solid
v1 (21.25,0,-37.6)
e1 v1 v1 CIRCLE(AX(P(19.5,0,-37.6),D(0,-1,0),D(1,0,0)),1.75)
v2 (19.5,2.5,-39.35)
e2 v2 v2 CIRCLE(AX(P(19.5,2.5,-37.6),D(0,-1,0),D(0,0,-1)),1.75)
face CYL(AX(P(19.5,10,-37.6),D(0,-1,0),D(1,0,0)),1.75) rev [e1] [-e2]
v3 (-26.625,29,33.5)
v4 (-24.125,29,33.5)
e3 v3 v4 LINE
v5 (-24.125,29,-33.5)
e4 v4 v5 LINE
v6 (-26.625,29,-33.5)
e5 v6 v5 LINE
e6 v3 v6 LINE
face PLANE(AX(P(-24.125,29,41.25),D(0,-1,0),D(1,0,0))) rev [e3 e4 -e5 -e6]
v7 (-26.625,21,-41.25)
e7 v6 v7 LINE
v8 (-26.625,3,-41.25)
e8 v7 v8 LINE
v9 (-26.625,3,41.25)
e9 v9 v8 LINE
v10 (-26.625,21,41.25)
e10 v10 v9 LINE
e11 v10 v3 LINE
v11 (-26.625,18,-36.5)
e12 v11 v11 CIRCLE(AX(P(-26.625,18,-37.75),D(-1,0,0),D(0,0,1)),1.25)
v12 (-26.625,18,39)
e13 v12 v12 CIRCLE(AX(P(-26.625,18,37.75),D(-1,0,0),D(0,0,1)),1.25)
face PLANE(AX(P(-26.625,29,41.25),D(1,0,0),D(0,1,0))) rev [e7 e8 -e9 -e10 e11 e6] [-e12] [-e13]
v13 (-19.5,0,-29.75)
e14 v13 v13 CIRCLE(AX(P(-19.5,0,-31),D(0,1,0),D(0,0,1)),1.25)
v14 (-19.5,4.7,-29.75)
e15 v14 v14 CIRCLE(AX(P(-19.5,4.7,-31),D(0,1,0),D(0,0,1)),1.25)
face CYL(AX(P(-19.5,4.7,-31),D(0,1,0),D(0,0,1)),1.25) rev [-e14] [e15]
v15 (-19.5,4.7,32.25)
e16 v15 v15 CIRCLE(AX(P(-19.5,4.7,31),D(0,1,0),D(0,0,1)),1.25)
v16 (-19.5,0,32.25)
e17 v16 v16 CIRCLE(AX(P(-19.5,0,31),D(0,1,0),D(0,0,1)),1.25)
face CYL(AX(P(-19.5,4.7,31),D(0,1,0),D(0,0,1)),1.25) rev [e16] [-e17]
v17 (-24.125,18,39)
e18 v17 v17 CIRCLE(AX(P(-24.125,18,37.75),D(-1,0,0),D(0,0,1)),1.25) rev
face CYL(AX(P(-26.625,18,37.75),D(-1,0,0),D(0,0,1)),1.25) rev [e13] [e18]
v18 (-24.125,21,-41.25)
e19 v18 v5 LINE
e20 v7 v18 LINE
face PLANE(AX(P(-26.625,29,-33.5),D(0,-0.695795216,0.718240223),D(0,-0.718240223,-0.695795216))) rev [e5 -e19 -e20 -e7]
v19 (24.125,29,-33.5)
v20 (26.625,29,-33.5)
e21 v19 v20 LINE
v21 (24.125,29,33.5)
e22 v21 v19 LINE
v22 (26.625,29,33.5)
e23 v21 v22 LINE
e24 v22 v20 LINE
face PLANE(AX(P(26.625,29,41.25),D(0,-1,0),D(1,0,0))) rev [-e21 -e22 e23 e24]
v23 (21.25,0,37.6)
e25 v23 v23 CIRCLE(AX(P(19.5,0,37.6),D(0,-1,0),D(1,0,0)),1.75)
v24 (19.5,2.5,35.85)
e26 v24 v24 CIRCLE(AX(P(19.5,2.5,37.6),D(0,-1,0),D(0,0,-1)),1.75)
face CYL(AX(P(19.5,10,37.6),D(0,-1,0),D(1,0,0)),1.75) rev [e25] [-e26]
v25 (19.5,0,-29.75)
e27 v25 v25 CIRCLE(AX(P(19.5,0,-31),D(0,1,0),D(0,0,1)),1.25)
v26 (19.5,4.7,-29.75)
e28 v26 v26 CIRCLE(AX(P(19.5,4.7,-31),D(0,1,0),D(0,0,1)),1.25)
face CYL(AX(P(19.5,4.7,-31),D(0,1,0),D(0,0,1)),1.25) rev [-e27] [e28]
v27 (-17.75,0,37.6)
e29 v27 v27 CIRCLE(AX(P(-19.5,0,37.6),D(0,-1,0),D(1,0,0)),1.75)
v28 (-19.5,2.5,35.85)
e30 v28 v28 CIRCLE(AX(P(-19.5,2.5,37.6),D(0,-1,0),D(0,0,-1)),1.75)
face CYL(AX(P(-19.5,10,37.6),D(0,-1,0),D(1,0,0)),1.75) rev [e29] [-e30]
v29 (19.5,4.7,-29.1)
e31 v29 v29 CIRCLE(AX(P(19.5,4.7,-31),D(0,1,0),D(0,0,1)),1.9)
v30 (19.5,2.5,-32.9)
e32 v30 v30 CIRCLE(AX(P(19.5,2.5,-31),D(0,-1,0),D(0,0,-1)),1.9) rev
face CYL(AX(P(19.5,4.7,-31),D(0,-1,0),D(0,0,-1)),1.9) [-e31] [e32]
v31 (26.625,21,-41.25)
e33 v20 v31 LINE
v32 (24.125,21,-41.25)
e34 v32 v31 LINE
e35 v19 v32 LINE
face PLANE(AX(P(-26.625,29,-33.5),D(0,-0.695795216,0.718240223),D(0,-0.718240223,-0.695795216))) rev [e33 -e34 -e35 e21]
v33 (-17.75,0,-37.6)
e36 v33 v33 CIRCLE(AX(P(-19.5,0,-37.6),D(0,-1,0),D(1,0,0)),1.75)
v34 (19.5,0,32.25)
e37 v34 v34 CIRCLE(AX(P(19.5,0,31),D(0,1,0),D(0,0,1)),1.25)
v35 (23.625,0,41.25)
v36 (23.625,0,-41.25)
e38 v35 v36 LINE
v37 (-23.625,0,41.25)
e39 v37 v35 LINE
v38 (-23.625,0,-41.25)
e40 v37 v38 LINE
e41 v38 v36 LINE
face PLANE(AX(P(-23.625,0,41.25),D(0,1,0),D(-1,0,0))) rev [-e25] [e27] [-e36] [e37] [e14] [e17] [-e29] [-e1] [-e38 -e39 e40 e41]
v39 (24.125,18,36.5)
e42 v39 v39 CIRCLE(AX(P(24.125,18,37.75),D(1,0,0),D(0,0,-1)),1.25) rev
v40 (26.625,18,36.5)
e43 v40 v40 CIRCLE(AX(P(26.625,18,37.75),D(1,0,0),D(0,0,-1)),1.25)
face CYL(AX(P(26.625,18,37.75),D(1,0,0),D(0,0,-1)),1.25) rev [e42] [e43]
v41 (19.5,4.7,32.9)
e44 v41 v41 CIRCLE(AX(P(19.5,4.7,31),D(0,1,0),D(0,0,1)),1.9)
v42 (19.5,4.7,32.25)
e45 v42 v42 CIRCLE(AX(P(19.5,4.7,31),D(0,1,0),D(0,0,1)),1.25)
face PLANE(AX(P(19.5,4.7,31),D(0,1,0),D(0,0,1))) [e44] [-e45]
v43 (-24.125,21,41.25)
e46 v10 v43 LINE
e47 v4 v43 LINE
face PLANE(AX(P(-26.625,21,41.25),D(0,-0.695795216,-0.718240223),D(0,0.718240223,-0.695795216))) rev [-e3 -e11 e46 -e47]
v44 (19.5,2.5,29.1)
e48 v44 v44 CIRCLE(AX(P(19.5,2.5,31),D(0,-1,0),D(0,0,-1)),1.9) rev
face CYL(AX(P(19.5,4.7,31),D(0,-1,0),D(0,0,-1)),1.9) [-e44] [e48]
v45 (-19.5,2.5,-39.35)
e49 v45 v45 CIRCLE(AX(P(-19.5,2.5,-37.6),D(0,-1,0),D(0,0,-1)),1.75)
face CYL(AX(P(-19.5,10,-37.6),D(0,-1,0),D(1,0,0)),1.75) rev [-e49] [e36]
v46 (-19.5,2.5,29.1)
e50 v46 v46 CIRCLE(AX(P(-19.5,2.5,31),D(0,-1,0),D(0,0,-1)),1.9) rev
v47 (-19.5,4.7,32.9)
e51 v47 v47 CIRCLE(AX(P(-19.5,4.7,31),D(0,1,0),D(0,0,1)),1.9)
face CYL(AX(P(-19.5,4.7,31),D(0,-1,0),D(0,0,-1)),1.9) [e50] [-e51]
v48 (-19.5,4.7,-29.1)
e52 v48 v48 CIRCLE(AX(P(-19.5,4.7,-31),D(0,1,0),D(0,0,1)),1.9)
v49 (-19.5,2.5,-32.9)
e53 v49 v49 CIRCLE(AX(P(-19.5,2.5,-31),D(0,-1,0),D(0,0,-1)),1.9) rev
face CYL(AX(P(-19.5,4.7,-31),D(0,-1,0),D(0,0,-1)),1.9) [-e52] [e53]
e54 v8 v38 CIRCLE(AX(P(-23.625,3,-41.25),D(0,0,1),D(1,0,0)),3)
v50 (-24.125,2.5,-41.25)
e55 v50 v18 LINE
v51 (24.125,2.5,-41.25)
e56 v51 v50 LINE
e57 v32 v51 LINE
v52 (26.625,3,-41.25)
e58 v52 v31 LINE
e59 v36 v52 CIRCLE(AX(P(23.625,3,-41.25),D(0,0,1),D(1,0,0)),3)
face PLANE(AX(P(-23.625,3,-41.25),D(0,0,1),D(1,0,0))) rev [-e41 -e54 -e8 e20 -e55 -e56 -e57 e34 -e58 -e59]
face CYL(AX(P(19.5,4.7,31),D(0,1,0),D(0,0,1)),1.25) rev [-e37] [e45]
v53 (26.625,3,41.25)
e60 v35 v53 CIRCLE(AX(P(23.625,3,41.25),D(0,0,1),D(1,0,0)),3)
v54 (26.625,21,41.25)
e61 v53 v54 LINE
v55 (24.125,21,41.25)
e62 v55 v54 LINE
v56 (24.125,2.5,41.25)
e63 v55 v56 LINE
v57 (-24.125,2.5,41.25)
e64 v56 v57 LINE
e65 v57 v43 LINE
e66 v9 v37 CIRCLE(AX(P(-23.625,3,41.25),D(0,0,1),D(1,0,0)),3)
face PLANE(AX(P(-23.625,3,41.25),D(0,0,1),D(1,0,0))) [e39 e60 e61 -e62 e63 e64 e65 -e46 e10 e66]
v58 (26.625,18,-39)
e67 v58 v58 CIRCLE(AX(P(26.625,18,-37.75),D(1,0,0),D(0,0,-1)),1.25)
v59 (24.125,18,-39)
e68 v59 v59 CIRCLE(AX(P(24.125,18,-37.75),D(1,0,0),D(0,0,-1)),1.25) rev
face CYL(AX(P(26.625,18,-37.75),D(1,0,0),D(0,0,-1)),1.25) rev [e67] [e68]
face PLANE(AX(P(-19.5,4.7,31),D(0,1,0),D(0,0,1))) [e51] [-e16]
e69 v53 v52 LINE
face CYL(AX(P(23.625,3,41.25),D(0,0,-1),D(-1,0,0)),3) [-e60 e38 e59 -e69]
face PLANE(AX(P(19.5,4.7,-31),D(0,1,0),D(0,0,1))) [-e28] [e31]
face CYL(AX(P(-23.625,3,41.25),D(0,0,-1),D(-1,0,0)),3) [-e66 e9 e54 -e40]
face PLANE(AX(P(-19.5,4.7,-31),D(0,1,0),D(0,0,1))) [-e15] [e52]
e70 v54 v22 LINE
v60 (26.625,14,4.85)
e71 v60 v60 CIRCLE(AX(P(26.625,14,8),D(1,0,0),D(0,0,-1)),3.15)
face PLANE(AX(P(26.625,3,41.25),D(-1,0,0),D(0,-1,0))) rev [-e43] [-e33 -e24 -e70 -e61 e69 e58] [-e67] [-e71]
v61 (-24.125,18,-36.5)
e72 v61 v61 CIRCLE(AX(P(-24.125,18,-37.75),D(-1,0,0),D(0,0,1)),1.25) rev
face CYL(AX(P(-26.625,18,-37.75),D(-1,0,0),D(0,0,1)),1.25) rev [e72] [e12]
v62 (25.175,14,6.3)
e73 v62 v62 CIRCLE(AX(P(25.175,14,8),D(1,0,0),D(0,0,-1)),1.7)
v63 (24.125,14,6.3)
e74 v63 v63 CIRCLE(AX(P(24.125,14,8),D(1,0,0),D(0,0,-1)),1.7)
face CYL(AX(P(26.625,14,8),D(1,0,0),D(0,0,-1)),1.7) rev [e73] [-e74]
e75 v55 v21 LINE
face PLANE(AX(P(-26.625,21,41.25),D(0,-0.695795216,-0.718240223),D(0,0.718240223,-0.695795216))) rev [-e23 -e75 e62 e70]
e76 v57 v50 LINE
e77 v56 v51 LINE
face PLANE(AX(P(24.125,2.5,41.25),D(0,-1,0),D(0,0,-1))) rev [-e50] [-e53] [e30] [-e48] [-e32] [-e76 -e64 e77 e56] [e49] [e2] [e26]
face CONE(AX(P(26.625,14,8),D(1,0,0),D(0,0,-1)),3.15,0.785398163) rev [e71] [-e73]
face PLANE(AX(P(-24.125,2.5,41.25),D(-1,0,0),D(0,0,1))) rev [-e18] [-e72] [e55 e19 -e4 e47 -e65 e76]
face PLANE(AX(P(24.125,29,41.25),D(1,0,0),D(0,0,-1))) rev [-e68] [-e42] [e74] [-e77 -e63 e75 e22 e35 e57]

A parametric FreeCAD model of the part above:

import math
import FreeCAD as App
import Part
import Sketcher

V = App.Vector


def add_polygon(sketch, points):
    """Adds a closed chain of lines whose ends are joined by coincident constraints."""
    first, n = sketch.GeometryCount, len(points)
    for a, b in zip(points, points[1:] + points[:1]):
        sketch.addGeometry(Part.LineSegment(App.Vector(*a, 0), App.Vector(*b, 0)), False)
    for i in range(n):
        sketch.addConstraint(Sketcher.Constraint("Coincident", first + i, 2, first + (i + 1) % n, 1))

doc = App.newDocument("Part")
body = doc.addObject("PartDesign::Body", "Body")

# Sketch on XY plane
sketch1 = body.newObject("Sketcher::SketchObject", "Sketch")
sketch1.AttachmentSupport = (doc.getObject("XY_Plane"), [""])
sketch1.MapMode = "FlatFace"
sketch1.addGeometry([
    Part.LineSegment(V(-26.6, 29, 0), V(-26.6, 3, 0)),  # 0
    Part.ArcOfCircle(Part.Circle(V(-23.6, 3, 0), V(0, 0, 1), 3), math.radians(180), math.radians(270)),  # 1
    Part.LineSegment(V(-23.6, 0, 0), V(23.6, 0, 0)),  # 2
    Part.ArcOfCircle(Part.Circle(V(23.6, 3, 0), V(0, 0, 1), 3), math.radians(-90), math.radians(0)),  # 3
    Part.LineSegment(V(26.6, 3, 0), V(26.6, 29, 0)),  # 4
    Part.LineSegment(V(26.6, 29, 0), V(24.1, 29, 0)),  # 5
    Part.LineSegment(V(24.1, 29, 0), V(24.1, 2.5, 0)),  # 6
    Part.LineSegment(V(24.1, 2.5, 0), V(-24.1, 2.5, 0)),  # 7
    Part.LineSegment(V(-24.1, 2.5, 0), V(-24.1, 29, 0)),  # 8
    Part.LineSegment(V(-24.1, 29, 0), V(-26.6, 29, 0)),  # 9
], False)
sketch1.addConstraint([
    Sketcher.Constraint("Tangent", 0, 2, 1, 1),
    Sketcher.Constraint("Tangent", 1, 2, 2, 1),
    Sketcher.Constraint("Tangent", 2, 2, 3, 1),
    Sketcher.Constraint("Tangent", 3, 2, 4, 1),
    Sketcher.Constraint("Coincident", 4, 2, 5, 1),
    Sketcher.Constraint("Coincident", 5, 2, 6, 1),
    Sketcher.Constraint("Coincident", 6, 2, 7, 1),
    Sketcher.Constraint("Coincident", 7, 2, 8, 1),
    Sketcher.Constraint("Coincident", 8, 2, 9, 1),
    Sketcher.Constraint("Coincident", 9, 2, 0, 1),
    Sketcher.Constraint("Vertical", 0),
    Sketcher.Constraint("Horizontal", 2),
    Sketcher.Constraint("Vertical", 4),
    Sketcher.Constraint("Horizontal", 5),
    Sketcher.Constraint("Vertical", 6),
    Sketcher.Constraint("Horizontal", 7),
    Sketcher.Constraint("Vertical", 8),
    Sketcher.Constraint("Horizontal", 9),
    Sketcher.Constraint("Equal", 1, 3),
    Sketcher.Constraint("Symmetric", 1, 2, 2, 2, -1, 1),
    Sketcher.Constraint("Symmetric", 5, 2, 8, 2, -2),
    Sketcher.Constraint("Radius", 1, 3.0),
    Sketcher.Constraint("DistanceY", 0, 2, 0, 1, 26.0),
    Sketcher.Constraint("DistanceX", 5, 2, 5, 1, 2.5),
    Sketcher.Constraint("DistanceY", 6, 2, 6, 1, 26.5),
    Sketcher.Constraint("DistanceX", 2, 1, 2, 2, 47.25),
])
pad1 = body.newObject("PartDesign::Pad", "Pad")
pad1.Profile = sketch1
pad1.Length = 82.5
pad1.Midplane = True

# Sketch on YZ plane
sketch2 = body.newObject("Sketcher::SketchObject", "Sketch001")
sketch2.AttachmentSupport = (doc.getObject("YZ_Plane"), [""])
sketch2.MapMode = "FlatFace"
add_polygon(sketch2, [(21, -41), (29, -41), (29, -34)])  # lines 0-2
add_polygon(sketch2, [(29, 41), (21, 41), (29, 34)])  # lines 3-5
sketch2.addConstraint([
    Sketcher.Constraint("Horizontal", 0),
    Sketcher.Constraint("Vertical", 1),
    Sketcher.Constraint("Horizontal", 3),
    Sketcher.Constraint("Vertical", 5),
    Sketcher.Constraint("Symmetric", 2, 2, 3, 2, -1),
    Sketcher.Constraint("Symmetric", 1, 2, 4, 2, -1),
    Sketcher.Constraint("DistanceX", 0, 1, 0, 2, 8.0),
    Sketcher.Constraint("DistanceX", -1, 1, 0, 2, 29.0),
    Sketcher.Constraint("DistanceY", 1, 2, 4, 2, 67.0),
    Sketcher.Constraint("DistanceY", 1, 1, 1, 2, 7.75),
])
pocket1 = body.newObject("PartDesign::Pocket", "Pocket")
pocket1.Profile = sketch2
pocket1.Type = "ThroughAll"
pocket1.Midplane = True

# Sketch on XZ plane
sketch3 = body.newObject("Sketcher::SketchObject", "Sketch002")
sketch3.AttachmentSupport = (doc.getObject("XZ_Plane"), [""])
sketch3.MapMode = "FlatFace"
sketch3.addGeometry([
    Part.Circle(V(-19.5, -37.6, 0), V(0, 0, 1), 1.8),
    Part.Circle(V(-19.5, 37.6, 0), V(0, 0, 1), 1.8),
    Part.Circle(V(19.5, 37.6, 0), V(0, 0, 1), 1.8),
    Part.Circle(V(19.5, -37.6, 0), V(0, 0, 1), 1.8),
], False)
sketch3.addConstraint([
    Sketcher.Constraint("Equal", 0, 1),
    Sketcher.Constraint("Equal", 1, 2),
    Sketcher.Constraint("Equal", 2, 3),
    Sketcher.Constraint("Symmetric", 0, 3, 2, 3, -1, 1),
    Sketcher.Constraint("Symmetric", 1, 3, 3, 3, -1, 1),
    Sketcher.Constraint("Symmetric", 1, 3, 2, 3, -2),
    Sketcher.Constraint("Diameter", 0, 3.5),
    Sketcher.Constraint("DistanceX", 1, 3, 2, 3, 39.0),
    Sketcher.Constraint("DistanceY", 0, 3, -1, 1, 37.6),
])
pocket2 = body.newObject("PartDesign::Pocket", "Pocket001")
pocket2.Profile = sketch3
pocket2.Length = 10

# Sketch on YZ plane
sketch4 = body.newObject("Sketcher::SketchObject", "Sketch003")
sketch4.AttachmentSupport = (doc.getObject("YZ_Plane"), [""])
sketch4.MapMode = "FlatFace"
sketch4.AttachmentOffset = App.Placement(V(0, 0, 26.625), App.Rotation())
sketch4.addGeometry(Part.Circle(V(18, -37.8, 0), V(0, 0, 1), 1.2), False)
sketch4.addConstraint([
    Sketcher.Constraint("Diameter", 0, 2.5),
    Sketcher.Constraint("DistanceX", -1, 1, 0, 3, 18.0),
    Sketcher.Constraint("DistanceY", 0, 3, -1, 1, 37.75),
])
pocket3 = body.newObject("PartDesign::Pocket", "Pocket002")
pocket3.Profile = sketch4
pocket3.Type = "UpToFirst"

# Sketch on YZ plane
sketch5 = body.newObject("Sketcher::SketchObject", "Sketch004")
sketch5.AttachmentSupport = (doc.getObject("YZ_Plane"), [""])
sketch5.MapMode = "FlatFace"
sketch5.AttachmentOffset = App.Placement(V(0, 0, 26.625), App.Rotation())
sketch5.addGeometry(Part.Circle(V(18, 37.8, 0), V(0, 0, 1), 1.2), False)
sketch5.addConstraint([
    Sketcher.Constraint("Diameter", 0, 2.5),
    Sketcher.Constraint("DistanceX", -1, 1, 0, 3, 18.0),
    Sketcher.Constraint("DistanceY", -1, 1, 0, 3, 37.75),
])
pocket4 = body.newObject("PartDesign::Pocket", "Pocket003")
pocket4.Profile = sketch5
pocket4.Type = "UpToFirst"

# Sketch on YZ plane
sketch6 = body.newObject("Sketcher::SketchObject", "Sketch005")
sketch6.AttachmentSupport = (doc.getObject("YZ_Plane"), [""])
sketch6.MapMode = "FlatFace"
sketch6.AttachmentOffset = App.Placement(V(0, 0, -26.625), App.Rotation())
sketch6.addGeometry([
    Part.Circle(V(18, -37.8, 0), V(0, 0, 1), 1.2),
    Part.Circle(V(18, 37.8, 0), V(0, 0, 1), 1.2),
], False)
sketch6.addConstraint([
    Sketcher.Constraint("Equal", 0, 1),
    Sketcher.Constraint("Symmetric", 0, 3, 1, 3, -1),
    Sketcher.Constraint("Diameter", 0, 2.5),
    Sketcher.Constraint("DistanceX", -1, 1, 0, 3, 18.0),
    Sketcher.Constraint("DistanceY", 0, 3, 1, 3, 75.5),
])
doc.recompute()
hole = body.newObject("PartDesign::Hole", "Hole")
hole.Profile = sketch6
hole.ThreadType = "None"
hole.Diameter = 2.5
hole.DepthType = "ThroughAll"
hole.Reversed = True

# Sketch on XZ plane
sketch7 = body.newObject("Sketcher::SketchObject", "Sketch006")
sketch7.AttachmentSupport = (doc.getObject("XZ_Plane"), [""])
sketch7.MapMode = "FlatFace"
sketch7.AttachmentOffset = App.Placement(V(0, 0, -2.5), App.Rotation())
sketch7.addGeometry([
    Part.Circle(V(19.5, -31, 0), V(0, 0, 1), 1.9),
    Part.Circle(V(19.5, 31, 0), V(0, 0, 1), 1.9),
    Part.Circle(V(-19.5, 31, 0), V(0, 0, 1), 1.9),
    Part.Circle(V(-19.5, -31, 0), V(0, 0, 1), 1.9),
], False)
sketch7.addConstraint([
    Sketcher.Constraint("Equal", 0, 1),
    Sketcher.Constraint("Equal", 1, 2),
    Sketcher.Constraint("Equal", 2, 3),
    Sketcher.Constraint("Symmetric", 0, 3, 2, 3, -1, 1),
    Sketcher.Constraint("Symmetric", 1, 3, 3, 3, -1, 1),
    Sketcher.Constraint("Symmetric", 1, 3, 2, 3, -2),
    Sketcher.Constraint("Diameter", 0, 3.8),
    Sketcher.Constraint("DistanceY", 0, 3, -1, 1, 31.0),
    Sketcher.Constraint("DistanceX", 2, 3, 1, 3, 39.0),
])
pad2 = body.newObject("PartDesign::Pad", "Pad001")
pad2.Profile = sketch7
pad2.Length = 2.2
pad2.Reversed = True

# Sketch on XZ plane
sketch8 = body.newObject("Sketcher::SketchObject", "Sketch007")
sketch8.AttachmentSupport = (doc.getObject("XZ_Plane"), [""])
sketch8.MapMode = "FlatFace"
sketch8.AttachmentOffset = App.Placement(V(0, 0, -4.7), App.Rotation())
sketch8.addGeometry([
    Part.Circle(V(19.5, -31, 0), V(0, 0, 1), 1.2),
    Part.Circle(V(-19.5, -31, 0), V(0, 0, 1), 1.2),
    Part.Circle(V(19.5, 31, 0), V(0, 0, 1), 1.2),
    Part.Circle(V(-19.5, 31, 0), V(0, 0, 1), 1.2),
], False)
sketch8.addConstraint([
    Sketcher.Constraint("Equal", 0, 1),
    Sketcher.Constraint("Equal", 1, 2),
    Sketcher.Constraint("Equal", 2, 3),
    Sketcher.Constraint("Symmetric", 1, 3, 2, 3, -1, 1),
    Sketcher.Constraint("Symmetric", 0, 3, 3, 3, -1, 1),
    Sketcher.Constraint("Symmetric", 0, 3, 1, 3, -2),
    Sketcher.Constraint("Diameter", 0, 2.5),
    Sketcher.Constraint("DistanceY", 0, 3, -1, 1, 31.0),
    Sketcher.Constraint("DistanceX", 1, 3, 0, 3, 39.0),
])
doc.recompute()
hole2 = body.newObject("PartDesign::Hole", "Hole001")
hole2.Profile = sketch8
hole2.ThreadType = "None"
hole2.Diameter = 2.5
hole2.DepthType = "ThroughAll"
hole2.Reversed = True

# Sketch on YZ plane
sketch9 = body.newObject("Sketcher::SketchObject", "Sketch008")
sketch9.AttachmentSupport = (doc.getObject("YZ_Plane"), [""])
sketch9.MapMode = "FlatFace"
sketch9.AttachmentOffset = App.Placement(V(0, 0, 26.625), App.Rotation())
sketch9.addGeometry(Part.Circle(V(14, 8, 0), V(0, 0, 1), 1.7), False)
sketch9.addConstraint([
    Sketcher.Constraint("Diameter", 0, 3.4),
    Sketcher.Constraint("DistanceX", -1, 1, 0, 3, 14.0),
    Sketcher.Constraint("DistanceY", -1, 1, 0, 3, 8.0),
])
doc.recompute()
hole3 = body.newObject("PartDesign::Hole", "Hole002")
hole3.Profile = sketch9
hole3.ThreadType = "None"
hole3.Diameter = 3.4
hole3.DepthType = "Dimension"
hole3.Depth = 8.5
hole3.DrillPoint = "Angled"
hole3.DrillPointAngle = 118
hole3.HoleCutType = "Countersink"
hole3.HoleCutDiameter = 6.3
hole3.HoleCutCountersinkAngle = 90

doc.recompute()
